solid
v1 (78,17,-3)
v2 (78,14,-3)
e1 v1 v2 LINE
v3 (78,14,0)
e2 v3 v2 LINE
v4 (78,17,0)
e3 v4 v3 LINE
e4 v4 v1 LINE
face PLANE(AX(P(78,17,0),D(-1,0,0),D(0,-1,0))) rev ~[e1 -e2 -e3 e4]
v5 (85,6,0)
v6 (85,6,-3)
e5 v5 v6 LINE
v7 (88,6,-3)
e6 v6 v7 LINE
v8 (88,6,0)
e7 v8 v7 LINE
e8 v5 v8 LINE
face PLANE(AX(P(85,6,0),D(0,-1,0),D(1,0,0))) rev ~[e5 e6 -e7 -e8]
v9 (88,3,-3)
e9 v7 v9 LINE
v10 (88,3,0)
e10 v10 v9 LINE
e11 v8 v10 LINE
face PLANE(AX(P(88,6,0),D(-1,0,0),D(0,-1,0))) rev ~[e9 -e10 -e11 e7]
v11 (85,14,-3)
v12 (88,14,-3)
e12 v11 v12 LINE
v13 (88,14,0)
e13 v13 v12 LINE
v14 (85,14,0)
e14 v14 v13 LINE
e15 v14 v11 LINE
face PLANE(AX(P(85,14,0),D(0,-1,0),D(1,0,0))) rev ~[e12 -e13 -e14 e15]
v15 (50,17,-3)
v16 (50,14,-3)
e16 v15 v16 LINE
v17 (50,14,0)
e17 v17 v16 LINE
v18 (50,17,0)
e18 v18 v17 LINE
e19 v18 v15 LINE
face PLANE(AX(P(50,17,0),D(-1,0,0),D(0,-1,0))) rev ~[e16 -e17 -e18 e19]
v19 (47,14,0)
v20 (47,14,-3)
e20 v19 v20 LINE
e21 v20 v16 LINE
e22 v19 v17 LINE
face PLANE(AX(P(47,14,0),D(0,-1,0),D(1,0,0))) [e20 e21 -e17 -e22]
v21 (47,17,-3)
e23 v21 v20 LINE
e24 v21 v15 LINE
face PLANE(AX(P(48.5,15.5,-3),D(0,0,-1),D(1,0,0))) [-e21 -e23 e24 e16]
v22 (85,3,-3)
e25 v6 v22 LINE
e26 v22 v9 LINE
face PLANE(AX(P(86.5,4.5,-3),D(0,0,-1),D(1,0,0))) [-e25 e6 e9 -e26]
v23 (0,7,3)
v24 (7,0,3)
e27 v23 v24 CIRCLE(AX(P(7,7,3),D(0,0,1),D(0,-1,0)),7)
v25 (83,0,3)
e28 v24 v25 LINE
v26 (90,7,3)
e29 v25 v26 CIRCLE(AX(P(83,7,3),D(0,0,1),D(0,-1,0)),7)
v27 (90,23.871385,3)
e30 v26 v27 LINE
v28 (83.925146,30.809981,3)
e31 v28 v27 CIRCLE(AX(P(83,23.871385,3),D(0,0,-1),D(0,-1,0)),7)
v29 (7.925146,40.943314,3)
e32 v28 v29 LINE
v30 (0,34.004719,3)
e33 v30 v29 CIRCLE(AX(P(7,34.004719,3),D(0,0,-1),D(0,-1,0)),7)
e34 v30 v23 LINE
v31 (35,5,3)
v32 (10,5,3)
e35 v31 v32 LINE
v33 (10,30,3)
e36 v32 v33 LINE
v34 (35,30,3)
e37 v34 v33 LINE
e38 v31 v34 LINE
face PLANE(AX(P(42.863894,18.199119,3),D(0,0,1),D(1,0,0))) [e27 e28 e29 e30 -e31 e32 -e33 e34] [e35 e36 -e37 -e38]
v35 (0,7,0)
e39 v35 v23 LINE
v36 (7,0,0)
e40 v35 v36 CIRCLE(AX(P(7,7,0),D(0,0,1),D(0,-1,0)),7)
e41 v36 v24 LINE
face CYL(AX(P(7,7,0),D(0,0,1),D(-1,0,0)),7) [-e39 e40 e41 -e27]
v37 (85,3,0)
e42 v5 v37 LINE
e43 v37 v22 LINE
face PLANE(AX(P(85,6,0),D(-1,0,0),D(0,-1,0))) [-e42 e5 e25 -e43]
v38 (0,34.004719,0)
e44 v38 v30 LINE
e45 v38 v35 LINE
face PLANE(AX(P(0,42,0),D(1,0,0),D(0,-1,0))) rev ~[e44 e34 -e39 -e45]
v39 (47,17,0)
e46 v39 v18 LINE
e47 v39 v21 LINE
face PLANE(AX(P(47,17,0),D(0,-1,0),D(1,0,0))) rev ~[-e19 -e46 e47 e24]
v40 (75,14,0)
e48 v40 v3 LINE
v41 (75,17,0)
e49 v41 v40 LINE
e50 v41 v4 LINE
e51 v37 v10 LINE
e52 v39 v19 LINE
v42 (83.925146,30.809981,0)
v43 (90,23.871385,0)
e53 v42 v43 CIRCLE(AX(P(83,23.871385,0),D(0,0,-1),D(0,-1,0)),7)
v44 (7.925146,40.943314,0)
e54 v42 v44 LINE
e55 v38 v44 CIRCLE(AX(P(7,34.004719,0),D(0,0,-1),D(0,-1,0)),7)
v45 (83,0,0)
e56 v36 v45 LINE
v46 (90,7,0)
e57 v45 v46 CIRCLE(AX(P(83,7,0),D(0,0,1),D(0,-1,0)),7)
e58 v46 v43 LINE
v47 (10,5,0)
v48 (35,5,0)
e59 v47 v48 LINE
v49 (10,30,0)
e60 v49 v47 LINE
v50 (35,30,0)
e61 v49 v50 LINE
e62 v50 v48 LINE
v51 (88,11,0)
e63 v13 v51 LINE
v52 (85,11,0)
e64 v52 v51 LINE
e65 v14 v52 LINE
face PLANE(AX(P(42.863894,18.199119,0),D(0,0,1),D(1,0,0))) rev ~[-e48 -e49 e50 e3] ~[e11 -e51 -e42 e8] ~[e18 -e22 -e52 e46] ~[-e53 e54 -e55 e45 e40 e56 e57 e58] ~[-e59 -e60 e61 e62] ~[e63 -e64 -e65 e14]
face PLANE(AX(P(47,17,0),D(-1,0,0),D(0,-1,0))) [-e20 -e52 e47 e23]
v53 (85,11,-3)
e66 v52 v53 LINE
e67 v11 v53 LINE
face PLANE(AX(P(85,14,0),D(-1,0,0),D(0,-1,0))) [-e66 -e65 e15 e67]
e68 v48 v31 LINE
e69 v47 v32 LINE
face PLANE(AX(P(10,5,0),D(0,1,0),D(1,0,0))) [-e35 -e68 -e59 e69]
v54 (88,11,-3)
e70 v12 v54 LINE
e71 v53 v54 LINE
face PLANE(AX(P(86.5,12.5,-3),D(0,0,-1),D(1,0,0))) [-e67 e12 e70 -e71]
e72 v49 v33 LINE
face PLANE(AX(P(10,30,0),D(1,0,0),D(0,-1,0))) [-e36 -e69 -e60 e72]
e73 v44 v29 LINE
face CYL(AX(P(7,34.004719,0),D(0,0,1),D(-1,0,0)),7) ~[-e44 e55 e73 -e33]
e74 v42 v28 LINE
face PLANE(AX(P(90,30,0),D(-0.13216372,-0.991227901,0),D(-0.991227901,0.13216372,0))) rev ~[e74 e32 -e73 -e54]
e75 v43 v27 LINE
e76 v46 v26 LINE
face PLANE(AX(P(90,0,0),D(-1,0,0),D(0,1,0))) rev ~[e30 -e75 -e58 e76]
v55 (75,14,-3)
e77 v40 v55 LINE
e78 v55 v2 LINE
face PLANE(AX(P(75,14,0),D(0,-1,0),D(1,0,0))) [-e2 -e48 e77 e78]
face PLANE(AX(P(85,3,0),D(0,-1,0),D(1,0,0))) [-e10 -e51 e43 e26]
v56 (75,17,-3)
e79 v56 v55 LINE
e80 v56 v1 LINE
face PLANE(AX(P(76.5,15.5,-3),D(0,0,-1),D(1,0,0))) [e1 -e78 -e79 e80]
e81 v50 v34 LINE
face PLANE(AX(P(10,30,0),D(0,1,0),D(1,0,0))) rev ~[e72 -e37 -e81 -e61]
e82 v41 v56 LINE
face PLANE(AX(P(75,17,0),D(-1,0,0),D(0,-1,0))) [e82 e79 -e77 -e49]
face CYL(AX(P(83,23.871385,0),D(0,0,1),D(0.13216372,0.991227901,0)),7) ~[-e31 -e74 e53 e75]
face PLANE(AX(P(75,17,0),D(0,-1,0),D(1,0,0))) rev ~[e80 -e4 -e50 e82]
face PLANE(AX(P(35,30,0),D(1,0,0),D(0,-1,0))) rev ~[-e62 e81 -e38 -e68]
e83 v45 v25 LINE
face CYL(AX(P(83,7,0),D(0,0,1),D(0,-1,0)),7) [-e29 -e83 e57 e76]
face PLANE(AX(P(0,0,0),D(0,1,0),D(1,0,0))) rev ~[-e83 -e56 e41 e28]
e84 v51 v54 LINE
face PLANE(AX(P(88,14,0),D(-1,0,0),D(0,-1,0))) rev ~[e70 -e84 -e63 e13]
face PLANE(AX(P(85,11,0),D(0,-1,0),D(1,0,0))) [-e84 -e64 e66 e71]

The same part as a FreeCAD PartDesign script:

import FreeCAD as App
import Part
import Sketcher
from FreeCAD import Vector
Q = App.Units.Quantity


def edges_at(feature, points):
    """Names of the edges that pass closest to the given points."""
    edges = feature.Shape.Edges
    near = lambda p: min(range(len(edges)), key=lambda i: edges[i].distToShape(Part.Vertex(*p))[0])
    return sorted({f"Edge{near(p) + 1}" for p in points})


def add_polygon(sketch, points):
    """Adds a closed chain of lines whose ends are joined by coincident constraints."""
    first, n = sketch.GeometryCount, len(points)
    for a, b in zip(points, points[1:] + points[:1]):
        sketch.addGeometry(Part.LineSegment(App.Vector(*a, 0), App.Vector(*b, 0)), False)
    for i in range(n):
        sketch.addConstraint(Sketcher.Constraint("Coincident", first + i, 2, first + (i + 1) % n, 1))

doc = App.newDocument("Part")
body = doc.addObject("PartDesign::Body", "Body")

# Sketch on XY plane
sketch1 = body.newObject("Sketcher::SketchObject", "Sketch")
sketch1.AttachmentSupport = (doc.getObject("XY_Plane"), [""])
sketch1.MapMode = "FlatFace"
add_polygon(sketch1, [(0, 42), (0, 0), (90, 0), (90, 30)])  # lines 0-3
sketch1.addConstraint([
    Sketcher.Constraint("Vertical", 0),
    Sketcher.Constraint("Horizontal", 1),
    Sketcher.Constraint("Vertical", 2),
    Sketcher.Constraint("Coincident", 0, 2, -1, 1),
    Sketcher.Constraint("DistanceX", 1, 1, 1, 2, Q("90 mm")),
    Sketcher.Constraint("DistanceY", 0, 2, 0, 1, Q("42 mm")),
    Sketcher.Constraint("DistanceY", 2, 1, 2, 2, Q("30 mm")),
])
pad1 = body.newObject("PartDesign::Pad", "Pad")
pad1.Profile = sketch1
pad1.Length = 3

# Sketch on XY plane
sketch2 = body.newObject("Sketcher::SketchObject", "Sketch001")
sketch2.AttachmentSupport = (doc.getObject("XY_Plane"), [""])
sketch2.MapMode = "FlatFace"
add_polygon(sketch2, [(85, 3), (85, 6), (88, 6), (88, 3)])  # lines 0-3
add_polygon(sketch2, [(85, 11), (85, 14), (88, 14), (88, 11)])  # lines 4-7
add_polygon(sketch2, [(75, 14), (75, 17), (78, 17), (78, 14)])  # lines 8-11
add_polygon(sketch2, [(47, 14), (47, 17), (50, 17), (50, 14)])  # lines 12-15
sketch2.addConstraint([
    Sketcher.Constraint("Vertical", 0),
    Sketcher.Constraint("Horizontal", 1),
    Sketcher.Constraint("Vertical", 2),
    Sketcher.Constraint("Horizontal", 3),
    Sketcher.Constraint("Vertical", 4),
    Sketcher.Constraint("Horizontal", 5),
    Sketcher.Constraint("Vertical", 6),
    Sketcher.Constraint("Horizontal", 7),
    Sketcher.Constraint("Vertical", 8),
    Sketcher.Constraint("Horizontal", 9),
    Sketcher.Constraint("Vertical", 10),
    Sketcher.Constraint("Horizontal", 11),
    Sketcher.Constraint("Vertical", 12),
    Sketcher.Constraint("Horizontal", 13),
    Sketcher.Constraint("Vertical", 14),
    Sketcher.Constraint("Horizontal", 15),
    Sketcher.Constraint("Horizontal", 5, 2, 10, 2),
    Sketcher.Constraint("Horizontal", 9, 2, 12, 2),
    Sketcher.Constraint("Horizontal", 11, 2, 14, 2),
    Sketcher.Constraint("Vertical", 3, 2, 4, 2),
    Sketcher.Constraint("Vertical", 2, 2, 5, 2),
    Sketcher.Constraint("Equal", 7, 9),
    Sketcher.Constraint("Equal", 11, 13),
    Sketcher.Constraint("Equal", 15, 0),
    Sketcher.Constraint("Equal", 2, 4),
    Sketcher.Constraint("Equal", 6, 8),
    Sketcher.Constraint("DistanceX", 1, 1, 1, 2, Q("3 mm")),
    Sketcher.Constraint("DistanceX", -1, 1, 0, 2, Q("85 mm")),
    Sketcher.Constraint("DistanceY", -1, 1, 0, 2, Q("6 mm")),
    Sketcher.Constraint("DistanceY", -1, 1, 4, 2, Q("14 mm")),
    Sketcher.Constraint("DistanceX", -1, 1, 8, 2, Q("75 mm")),
    Sketcher.Constraint("DistanceX", -1, 1, 12, 2, Q("47 mm")),
])
pad2 = body.newObject("PartDesign::Pad", "Pad001")
pad2.Profile = sketch2
pad2.Length = 3
pad2.Reversed = True
doc.recompute()

fillet = body.newObject("PartDesign::Fillet", "Fillet")
fillet.Base = (pad2, edges_at(pad2, [
    (0, 42, 1.5),
    (0, 0, 1.5),
    (90, 0, 1.5),
    (90, 30, 1.5),
]))
fillet.Radius = 7

# Sketch on XY plane
sketch3 = body.newObject("Sketcher::SketchObject", "Sketch002")
sketch3.AttachmentSupport = (doc.getObject("XY_Plane"), [""])
sketch3.MapMode = "FlatFace"
add_polygon(sketch3, [(10, 5), (10, 30), (35, 30), (35, 5)])  # lines 0-3
sketch3.addConstraint([
    Sketcher.Constraint("Vertical", 0),
    Sketcher.Constraint("Horizontal", 1),
    Sketcher.Constraint("Vertical", 2),
    Sketcher.Constraint("Horizontal", 3),
    Sketcher.Constraint("Equal", 3, 0),
    Sketcher.Constraint("DistanceX", 1, 1, 1, 2, Q("25 mm")),
    Sketcher.Constraint("DistanceX", -1, 1, 0, 2, Q("10 mm")),
    Sketcher.Constraint("DistanceY", -1, 1, 0, 2, Q("30 mm")),
])
pocket1 = body.newObject("PartDesign::Pocket", "Pocket")
pocket1.Profile = sketch3
pocket1.Length = 5
pocket1.Reversed = True

doc.recompute()
